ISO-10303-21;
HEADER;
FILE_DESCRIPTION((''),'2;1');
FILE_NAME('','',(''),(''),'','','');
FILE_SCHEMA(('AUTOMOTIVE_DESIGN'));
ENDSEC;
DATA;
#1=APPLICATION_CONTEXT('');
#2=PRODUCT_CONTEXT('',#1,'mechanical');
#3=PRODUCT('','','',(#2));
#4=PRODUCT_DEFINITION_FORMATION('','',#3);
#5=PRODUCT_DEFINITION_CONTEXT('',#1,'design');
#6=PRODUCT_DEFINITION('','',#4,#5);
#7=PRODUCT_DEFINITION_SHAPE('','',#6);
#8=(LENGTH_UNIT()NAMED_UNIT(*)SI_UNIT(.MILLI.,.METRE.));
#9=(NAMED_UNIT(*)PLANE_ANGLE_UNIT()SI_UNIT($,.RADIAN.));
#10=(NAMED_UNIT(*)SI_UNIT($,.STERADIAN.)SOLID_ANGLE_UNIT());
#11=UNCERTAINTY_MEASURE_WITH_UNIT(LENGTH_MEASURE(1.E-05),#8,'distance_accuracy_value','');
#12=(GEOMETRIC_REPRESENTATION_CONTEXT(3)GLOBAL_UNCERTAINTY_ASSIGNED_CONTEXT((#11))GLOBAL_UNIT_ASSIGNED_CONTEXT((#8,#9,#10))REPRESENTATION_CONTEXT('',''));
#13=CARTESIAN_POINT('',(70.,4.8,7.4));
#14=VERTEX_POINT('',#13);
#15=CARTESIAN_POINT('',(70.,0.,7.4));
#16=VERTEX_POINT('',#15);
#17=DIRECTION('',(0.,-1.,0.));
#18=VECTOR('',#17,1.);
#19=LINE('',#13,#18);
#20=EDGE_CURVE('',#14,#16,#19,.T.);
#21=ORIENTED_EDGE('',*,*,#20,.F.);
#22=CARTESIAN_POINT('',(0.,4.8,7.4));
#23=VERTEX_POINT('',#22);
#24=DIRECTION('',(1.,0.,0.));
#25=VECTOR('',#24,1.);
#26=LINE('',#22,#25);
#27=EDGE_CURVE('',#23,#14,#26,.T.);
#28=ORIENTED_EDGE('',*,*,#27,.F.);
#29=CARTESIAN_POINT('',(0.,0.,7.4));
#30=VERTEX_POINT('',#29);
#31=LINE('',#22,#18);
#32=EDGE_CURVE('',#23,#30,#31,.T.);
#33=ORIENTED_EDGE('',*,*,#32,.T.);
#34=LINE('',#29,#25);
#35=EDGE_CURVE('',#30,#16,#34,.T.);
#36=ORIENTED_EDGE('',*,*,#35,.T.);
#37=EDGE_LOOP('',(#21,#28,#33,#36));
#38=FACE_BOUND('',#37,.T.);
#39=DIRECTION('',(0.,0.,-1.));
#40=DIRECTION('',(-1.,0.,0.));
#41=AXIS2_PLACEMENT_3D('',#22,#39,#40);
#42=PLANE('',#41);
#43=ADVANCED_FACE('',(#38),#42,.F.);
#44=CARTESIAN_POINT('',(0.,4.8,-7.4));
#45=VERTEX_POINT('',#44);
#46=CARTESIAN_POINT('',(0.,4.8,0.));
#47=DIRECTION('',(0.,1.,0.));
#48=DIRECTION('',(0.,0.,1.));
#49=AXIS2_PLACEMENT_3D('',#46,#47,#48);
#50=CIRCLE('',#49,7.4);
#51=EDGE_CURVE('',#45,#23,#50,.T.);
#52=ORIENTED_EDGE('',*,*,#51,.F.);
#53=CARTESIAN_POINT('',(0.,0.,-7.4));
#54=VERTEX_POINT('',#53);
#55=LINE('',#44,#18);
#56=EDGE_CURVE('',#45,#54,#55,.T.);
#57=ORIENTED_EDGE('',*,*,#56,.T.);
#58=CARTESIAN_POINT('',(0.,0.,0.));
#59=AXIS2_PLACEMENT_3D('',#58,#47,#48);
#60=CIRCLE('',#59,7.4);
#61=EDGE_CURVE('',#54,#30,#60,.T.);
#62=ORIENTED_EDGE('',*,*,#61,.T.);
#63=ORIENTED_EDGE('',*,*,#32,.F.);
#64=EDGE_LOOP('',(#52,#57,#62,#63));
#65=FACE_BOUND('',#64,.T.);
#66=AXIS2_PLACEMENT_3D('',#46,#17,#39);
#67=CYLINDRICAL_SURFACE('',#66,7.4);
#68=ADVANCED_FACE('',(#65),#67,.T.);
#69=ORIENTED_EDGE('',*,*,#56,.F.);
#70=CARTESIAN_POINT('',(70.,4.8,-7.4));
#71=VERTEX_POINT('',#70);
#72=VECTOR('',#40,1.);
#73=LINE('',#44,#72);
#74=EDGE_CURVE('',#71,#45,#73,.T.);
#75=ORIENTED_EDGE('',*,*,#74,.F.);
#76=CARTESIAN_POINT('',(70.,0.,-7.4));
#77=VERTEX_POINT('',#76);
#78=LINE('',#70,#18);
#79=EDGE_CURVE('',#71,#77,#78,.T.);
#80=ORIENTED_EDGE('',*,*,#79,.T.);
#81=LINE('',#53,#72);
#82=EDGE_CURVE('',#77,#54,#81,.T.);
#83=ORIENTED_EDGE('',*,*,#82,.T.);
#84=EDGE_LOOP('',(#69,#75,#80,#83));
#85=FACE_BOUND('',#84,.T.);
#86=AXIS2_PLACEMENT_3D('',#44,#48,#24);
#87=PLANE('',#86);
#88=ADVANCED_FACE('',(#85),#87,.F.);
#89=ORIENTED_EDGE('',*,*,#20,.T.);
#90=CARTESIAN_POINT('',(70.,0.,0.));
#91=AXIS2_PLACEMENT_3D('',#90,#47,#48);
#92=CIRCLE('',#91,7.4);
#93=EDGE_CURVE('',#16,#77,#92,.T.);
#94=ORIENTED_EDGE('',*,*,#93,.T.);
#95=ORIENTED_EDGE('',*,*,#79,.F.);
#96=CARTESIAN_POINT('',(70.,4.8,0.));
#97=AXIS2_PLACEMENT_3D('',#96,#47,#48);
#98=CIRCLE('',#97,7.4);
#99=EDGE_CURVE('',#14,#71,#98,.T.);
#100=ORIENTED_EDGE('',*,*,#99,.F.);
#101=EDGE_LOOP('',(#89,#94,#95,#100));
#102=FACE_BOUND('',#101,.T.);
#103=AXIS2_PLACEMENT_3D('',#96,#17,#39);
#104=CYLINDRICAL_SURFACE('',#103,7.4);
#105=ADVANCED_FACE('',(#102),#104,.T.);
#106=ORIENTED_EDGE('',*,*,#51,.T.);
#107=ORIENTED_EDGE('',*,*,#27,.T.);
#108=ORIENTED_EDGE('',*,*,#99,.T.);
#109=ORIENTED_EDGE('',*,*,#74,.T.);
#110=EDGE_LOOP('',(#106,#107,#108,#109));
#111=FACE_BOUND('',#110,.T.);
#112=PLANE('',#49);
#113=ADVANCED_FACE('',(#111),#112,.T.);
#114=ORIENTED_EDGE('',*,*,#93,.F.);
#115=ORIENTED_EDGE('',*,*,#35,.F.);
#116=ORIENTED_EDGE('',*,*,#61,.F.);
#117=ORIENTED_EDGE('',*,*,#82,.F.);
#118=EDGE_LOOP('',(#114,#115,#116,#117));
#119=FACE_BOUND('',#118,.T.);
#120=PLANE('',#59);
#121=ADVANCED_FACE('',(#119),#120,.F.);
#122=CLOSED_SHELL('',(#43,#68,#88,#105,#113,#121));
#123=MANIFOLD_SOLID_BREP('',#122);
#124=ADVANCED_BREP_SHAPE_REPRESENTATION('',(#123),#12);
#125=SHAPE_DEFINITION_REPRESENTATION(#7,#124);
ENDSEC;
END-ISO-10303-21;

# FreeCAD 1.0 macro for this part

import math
import FreeCAD as App
import Part
import Sketcher

doc = App.newDocument("Part")
body = doc.addObject("PartDesign::Body", "Body")

sketch1 = doc.addObject("Sketcher::SketchObject", "Sketch")
body.addObject(sketch1)
sketch1.AttachmentSupport = (doc.XZ_Plane, [""])
sketch1.MapMode = "FlatFace"
sketch1.addGeometry([
    Part.LineSegment(App.Vector(70, -7.4, 0), App.Vector(0, -7.4, 0)),
    Part.ArcOfCircle(Part.Circle(App.Vector(0, 0, 0), App.Vector(0, 0, 1), 7.4), math.radians(90), math.radians(270)),
    Part.LineSegment(App.Vector(0, 7.4, 0), App.Vector(70, 7.4, 0)),
    Part.ArcOfCircle(Part.Circle(App.Vector(70, 0, 0), App.Vector(0, 0, 1), 7.4), math.radians(-90), math.radians(90)),
], False)
sketch1.addConstraint([
    Sketcher.Constraint("Tangent", 0, 2, 1, 2),
    Sketcher.Constraint("Tangent", 1, 1, 2, 1),
    Sketcher.Constraint("Tangent", 2, 2, 3, 2),
    Sketcher.Constraint("Tangent", 3, 1, 0, 1),
    Sketcher.Constraint("Horizontal", 0),
    Sketcher.Constraint("Horizontal", 2),
    Sketcher.Constraint("Coincident", 1, 3, -1, 1),
    Sketcher.Constraint("Radius", 1, 7.4),
    Sketcher.Constraint("DistanceX", 0, 2, 0, 1, 70.0),
])
pad1 = doc.addObject("PartDesign::Pad", "Pad")
body.addObject(pad1)
pad1.Profile = sketch1
pad1.Length = 4.8
pad1.Reversed = True

doc.recompute()
